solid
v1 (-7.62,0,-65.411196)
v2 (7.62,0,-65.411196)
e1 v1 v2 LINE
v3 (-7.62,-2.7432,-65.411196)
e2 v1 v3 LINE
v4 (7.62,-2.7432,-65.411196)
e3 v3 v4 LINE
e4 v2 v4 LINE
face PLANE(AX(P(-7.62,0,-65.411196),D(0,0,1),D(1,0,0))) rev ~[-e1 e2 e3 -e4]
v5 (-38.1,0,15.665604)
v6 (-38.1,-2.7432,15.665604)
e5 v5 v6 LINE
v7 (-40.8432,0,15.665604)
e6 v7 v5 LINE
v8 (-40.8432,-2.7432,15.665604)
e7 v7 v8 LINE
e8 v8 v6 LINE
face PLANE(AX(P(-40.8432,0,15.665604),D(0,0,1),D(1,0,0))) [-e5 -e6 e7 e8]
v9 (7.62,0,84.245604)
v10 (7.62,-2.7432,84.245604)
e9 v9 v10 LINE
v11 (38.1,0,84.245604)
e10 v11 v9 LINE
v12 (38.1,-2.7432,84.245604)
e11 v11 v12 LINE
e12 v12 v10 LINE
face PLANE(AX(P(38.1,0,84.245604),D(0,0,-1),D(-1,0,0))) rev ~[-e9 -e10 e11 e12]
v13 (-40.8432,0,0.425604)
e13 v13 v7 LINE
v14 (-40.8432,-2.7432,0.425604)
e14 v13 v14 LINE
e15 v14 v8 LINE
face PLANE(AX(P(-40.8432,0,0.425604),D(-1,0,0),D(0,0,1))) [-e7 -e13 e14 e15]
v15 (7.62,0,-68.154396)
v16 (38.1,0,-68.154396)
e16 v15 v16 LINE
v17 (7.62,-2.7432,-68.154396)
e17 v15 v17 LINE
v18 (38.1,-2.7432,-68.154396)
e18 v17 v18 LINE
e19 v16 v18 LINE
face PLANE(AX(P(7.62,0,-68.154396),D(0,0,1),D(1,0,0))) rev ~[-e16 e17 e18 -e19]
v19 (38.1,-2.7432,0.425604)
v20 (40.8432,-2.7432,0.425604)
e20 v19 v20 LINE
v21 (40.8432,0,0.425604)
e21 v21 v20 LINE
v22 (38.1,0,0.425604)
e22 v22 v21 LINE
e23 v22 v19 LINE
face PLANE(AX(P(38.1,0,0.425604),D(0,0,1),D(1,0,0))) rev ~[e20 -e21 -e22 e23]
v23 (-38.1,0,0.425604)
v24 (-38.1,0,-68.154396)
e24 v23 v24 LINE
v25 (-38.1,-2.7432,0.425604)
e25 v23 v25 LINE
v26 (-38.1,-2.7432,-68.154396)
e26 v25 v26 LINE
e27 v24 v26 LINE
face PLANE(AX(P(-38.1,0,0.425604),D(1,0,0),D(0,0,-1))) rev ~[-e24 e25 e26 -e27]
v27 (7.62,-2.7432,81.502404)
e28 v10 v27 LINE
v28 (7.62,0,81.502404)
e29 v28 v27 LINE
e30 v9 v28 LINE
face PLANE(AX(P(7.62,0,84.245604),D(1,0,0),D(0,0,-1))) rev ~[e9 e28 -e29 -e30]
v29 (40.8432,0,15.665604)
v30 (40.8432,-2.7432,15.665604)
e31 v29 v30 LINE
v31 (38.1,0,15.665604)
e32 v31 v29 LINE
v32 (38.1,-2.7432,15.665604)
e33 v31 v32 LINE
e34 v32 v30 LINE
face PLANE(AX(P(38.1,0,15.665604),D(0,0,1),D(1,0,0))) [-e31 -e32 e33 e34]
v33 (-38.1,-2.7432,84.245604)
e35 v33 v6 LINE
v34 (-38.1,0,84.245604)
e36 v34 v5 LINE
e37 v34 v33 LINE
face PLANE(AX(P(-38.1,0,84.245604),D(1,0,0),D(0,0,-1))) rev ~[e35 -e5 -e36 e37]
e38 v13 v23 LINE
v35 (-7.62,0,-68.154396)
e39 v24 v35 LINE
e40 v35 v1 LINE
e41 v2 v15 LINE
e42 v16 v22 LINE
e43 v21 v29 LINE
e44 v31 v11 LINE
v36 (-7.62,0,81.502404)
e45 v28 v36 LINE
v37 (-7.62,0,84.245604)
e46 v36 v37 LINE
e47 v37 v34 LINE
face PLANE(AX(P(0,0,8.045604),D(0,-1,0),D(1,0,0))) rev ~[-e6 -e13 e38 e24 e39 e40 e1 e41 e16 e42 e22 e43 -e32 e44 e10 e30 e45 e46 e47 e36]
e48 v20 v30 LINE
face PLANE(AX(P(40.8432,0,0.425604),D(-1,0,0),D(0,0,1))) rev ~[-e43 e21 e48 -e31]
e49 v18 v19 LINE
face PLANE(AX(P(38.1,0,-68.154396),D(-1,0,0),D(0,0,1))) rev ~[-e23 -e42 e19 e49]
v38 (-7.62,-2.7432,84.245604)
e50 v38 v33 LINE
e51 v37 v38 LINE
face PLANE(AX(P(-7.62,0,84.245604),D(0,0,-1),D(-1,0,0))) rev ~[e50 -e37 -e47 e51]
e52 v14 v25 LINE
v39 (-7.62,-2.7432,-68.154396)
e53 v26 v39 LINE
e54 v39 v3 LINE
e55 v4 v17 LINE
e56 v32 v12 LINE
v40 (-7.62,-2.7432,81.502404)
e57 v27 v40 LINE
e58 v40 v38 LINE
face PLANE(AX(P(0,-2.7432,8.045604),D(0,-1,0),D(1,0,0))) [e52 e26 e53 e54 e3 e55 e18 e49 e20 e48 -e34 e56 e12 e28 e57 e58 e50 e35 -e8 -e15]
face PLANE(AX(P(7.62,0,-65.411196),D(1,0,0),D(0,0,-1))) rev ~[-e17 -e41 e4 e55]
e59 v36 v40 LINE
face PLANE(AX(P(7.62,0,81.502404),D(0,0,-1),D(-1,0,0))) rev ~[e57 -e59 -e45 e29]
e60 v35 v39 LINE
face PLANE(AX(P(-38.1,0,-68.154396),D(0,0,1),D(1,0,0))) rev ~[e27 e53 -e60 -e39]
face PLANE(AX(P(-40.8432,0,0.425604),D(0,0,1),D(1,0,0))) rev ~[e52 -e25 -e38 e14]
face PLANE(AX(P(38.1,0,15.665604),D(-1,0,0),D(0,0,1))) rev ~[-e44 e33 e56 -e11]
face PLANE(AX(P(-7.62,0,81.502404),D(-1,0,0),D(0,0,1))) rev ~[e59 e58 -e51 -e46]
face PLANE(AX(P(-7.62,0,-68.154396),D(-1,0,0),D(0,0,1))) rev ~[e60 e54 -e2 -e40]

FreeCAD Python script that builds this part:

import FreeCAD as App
import Part
import Sketcher
Q = App.Units.Quantity


def add_polygon(sketch, points):
    """Adds a closed chain of lines whose ends are joined by coincident constraints."""
    first, n = sketch.GeometryCount, len(points)
    for a, b in zip(points, points[1:] + points[:1]):
        sketch.addGeometry(Part.LineSegment(App.Vector(*a, 0), App.Vector(*b, 0)), False)
    for i in range(n):
        sketch.addConstraint(Sketcher.Constraint("Coincident", first + i, 2, first + (i + 1) % n, 1))

doc = App.newDocument("Part")
body = doc.addObject("PartDesign::Body", "Body")

# Sketch on XZ plane
sketch1 = body.newObject("Sketcher::SketchObject", "Sketch")
sketch1.AttachmentSupport = (doc.getObject("XZ_Plane"), [""])
sketch1.MapMode = "FlatFace"
add_polygon(sketch1, [(-7.6, 84.2), (-38.1, 84.2), (-38.1, 15.7), (-40.8, 15.7), (-40.8, 0.4), (-38.1, 0.4), (-38.1, -68.2), (-7.6, -68.2), (-7.6, -65.4), (7.6, -65.4), (7.6, -68.2), (38.1, -68.2), (38.1, 0.4), (40.8, 0.4), (40.8, 15.7), (38.1, 15.7), (38.1, 84.2), (7.6, 84.2), (7.6, 81.5), (-7.6, 81.5)])  # lines 0-19
sketch1.addConstraint(Sketcher.Constraint("Horizontal", 0))
sketch1.addConstraint(Sketcher.Constraint("Vertical", 1))
sketch1.addConstraint(Sketcher.Constraint("Horizontal", 2))
sketch1.addConstraint(Sketcher.Constraint("Vertical", 3))
sketch1.addConstraint(Sketcher.Constraint("Horizontal", 4))
sketch1.addConstraint(Sketcher.Constraint("Vertical", 5))
sketch1.addConstraint(Sketcher.Constraint("Horizontal", 6))
sketch1.addConstraint(Sketcher.Constraint("Vertical", 7))
sketch1.addConstraint(Sketcher.Constraint("Horizontal", 8))
sketch1.addConstraint(Sketcher.Constraint("Vertical", 9))
sketch1.addConstraint(Sketcher.Constraint("Horizontal", 10))
sketch1.addConstraint(Sketcher.Constraint("Vertical", 11))
sketch1.addConstraint(Sketcher.Constraint("Horizontal", 12))
sketch1.addConstraint(Sketcher.Constraint("Vertical", 13))
sketch1.addConstraint(Sketcher.Constraint("Horizontal", 14))
sketch1.addConstraint(Sketcher.Constraint("Vertical", 15))
sketch1.addConstraint(Sketcher.Constraint("Horizontal", 16))
sketch1.addConstraint(Sketcher.Constraint("Vertical", 17))
sketch1.addConstraint(Sketcher.Constraint("Horizontal", 18))
sketch1.addConstraint(Sketcher.Constraint("Vertical", 19))
sketch1.addConstraint(Sketcher.Constraint("Symmetric", 6, 2, 9, 2, -2))
sketch1.addConstraint(Sketcher.Constraint("Symmetric", 4, 2, 11, 2, -2))
sketch1.addConstraint(Sketcher.Constraint("Symmetric", 2, 2, 13, 2, -2))
sketch1.addConstraint(Sketcher.Constraint("Symmetric", 0, 2, 15, 2, -2))
sketch1.addConstraint(Sketcher.Constraint("Vertical", 1, 2, 4, 2))
sketch1.addConstraint(Sketcher.Constraint("Vertical", 9, 2, 16, 2))
sketch1.addConstraint(Sketcher.Constraint("Vertical", 7, 2, 18, 2))
sketch1.addConstraint(Sketcher.Constraint("Equal", 18, 3))
sketch1.addConstraint(Sketcher.Constraint("Equal", 1, 5))
sketch1.addConstraint(Sketcher.Constraint("Equal", 14, 7))
sketch1.addConstraint(Sketcher.Constraint("Equal", 9, 17))
sketch1.addConstraint(Sketcher.Constraint("DistanceX", 0, 2, 0, 1, Q("1.2 in")))
sketch1.addConstraint(Sketcher.Constraint("DistanceX", 8, 1, 8, 2, Q("0.6 in")))
sketch1.addConstraint(Sketcher.Constraint("DistanceY", 1, 2, 1, 1, Q("2.7 in")))
sketch1.addConstraint(Sketcher.Constraint("DistanceX", 2, 2, 2, 1, Q("0.108 in")))
sketch1.addConstraint(Sketcher.Constraint("DistanceY", -1, 1, 0, 2, Q("84.245604 mm")))
pad1 = body.newObject("PartDesign::Pad", "Pad")
pad1.Profile = sketch1
pad1.Length = Q("0.108 in")

doc.recompute()
